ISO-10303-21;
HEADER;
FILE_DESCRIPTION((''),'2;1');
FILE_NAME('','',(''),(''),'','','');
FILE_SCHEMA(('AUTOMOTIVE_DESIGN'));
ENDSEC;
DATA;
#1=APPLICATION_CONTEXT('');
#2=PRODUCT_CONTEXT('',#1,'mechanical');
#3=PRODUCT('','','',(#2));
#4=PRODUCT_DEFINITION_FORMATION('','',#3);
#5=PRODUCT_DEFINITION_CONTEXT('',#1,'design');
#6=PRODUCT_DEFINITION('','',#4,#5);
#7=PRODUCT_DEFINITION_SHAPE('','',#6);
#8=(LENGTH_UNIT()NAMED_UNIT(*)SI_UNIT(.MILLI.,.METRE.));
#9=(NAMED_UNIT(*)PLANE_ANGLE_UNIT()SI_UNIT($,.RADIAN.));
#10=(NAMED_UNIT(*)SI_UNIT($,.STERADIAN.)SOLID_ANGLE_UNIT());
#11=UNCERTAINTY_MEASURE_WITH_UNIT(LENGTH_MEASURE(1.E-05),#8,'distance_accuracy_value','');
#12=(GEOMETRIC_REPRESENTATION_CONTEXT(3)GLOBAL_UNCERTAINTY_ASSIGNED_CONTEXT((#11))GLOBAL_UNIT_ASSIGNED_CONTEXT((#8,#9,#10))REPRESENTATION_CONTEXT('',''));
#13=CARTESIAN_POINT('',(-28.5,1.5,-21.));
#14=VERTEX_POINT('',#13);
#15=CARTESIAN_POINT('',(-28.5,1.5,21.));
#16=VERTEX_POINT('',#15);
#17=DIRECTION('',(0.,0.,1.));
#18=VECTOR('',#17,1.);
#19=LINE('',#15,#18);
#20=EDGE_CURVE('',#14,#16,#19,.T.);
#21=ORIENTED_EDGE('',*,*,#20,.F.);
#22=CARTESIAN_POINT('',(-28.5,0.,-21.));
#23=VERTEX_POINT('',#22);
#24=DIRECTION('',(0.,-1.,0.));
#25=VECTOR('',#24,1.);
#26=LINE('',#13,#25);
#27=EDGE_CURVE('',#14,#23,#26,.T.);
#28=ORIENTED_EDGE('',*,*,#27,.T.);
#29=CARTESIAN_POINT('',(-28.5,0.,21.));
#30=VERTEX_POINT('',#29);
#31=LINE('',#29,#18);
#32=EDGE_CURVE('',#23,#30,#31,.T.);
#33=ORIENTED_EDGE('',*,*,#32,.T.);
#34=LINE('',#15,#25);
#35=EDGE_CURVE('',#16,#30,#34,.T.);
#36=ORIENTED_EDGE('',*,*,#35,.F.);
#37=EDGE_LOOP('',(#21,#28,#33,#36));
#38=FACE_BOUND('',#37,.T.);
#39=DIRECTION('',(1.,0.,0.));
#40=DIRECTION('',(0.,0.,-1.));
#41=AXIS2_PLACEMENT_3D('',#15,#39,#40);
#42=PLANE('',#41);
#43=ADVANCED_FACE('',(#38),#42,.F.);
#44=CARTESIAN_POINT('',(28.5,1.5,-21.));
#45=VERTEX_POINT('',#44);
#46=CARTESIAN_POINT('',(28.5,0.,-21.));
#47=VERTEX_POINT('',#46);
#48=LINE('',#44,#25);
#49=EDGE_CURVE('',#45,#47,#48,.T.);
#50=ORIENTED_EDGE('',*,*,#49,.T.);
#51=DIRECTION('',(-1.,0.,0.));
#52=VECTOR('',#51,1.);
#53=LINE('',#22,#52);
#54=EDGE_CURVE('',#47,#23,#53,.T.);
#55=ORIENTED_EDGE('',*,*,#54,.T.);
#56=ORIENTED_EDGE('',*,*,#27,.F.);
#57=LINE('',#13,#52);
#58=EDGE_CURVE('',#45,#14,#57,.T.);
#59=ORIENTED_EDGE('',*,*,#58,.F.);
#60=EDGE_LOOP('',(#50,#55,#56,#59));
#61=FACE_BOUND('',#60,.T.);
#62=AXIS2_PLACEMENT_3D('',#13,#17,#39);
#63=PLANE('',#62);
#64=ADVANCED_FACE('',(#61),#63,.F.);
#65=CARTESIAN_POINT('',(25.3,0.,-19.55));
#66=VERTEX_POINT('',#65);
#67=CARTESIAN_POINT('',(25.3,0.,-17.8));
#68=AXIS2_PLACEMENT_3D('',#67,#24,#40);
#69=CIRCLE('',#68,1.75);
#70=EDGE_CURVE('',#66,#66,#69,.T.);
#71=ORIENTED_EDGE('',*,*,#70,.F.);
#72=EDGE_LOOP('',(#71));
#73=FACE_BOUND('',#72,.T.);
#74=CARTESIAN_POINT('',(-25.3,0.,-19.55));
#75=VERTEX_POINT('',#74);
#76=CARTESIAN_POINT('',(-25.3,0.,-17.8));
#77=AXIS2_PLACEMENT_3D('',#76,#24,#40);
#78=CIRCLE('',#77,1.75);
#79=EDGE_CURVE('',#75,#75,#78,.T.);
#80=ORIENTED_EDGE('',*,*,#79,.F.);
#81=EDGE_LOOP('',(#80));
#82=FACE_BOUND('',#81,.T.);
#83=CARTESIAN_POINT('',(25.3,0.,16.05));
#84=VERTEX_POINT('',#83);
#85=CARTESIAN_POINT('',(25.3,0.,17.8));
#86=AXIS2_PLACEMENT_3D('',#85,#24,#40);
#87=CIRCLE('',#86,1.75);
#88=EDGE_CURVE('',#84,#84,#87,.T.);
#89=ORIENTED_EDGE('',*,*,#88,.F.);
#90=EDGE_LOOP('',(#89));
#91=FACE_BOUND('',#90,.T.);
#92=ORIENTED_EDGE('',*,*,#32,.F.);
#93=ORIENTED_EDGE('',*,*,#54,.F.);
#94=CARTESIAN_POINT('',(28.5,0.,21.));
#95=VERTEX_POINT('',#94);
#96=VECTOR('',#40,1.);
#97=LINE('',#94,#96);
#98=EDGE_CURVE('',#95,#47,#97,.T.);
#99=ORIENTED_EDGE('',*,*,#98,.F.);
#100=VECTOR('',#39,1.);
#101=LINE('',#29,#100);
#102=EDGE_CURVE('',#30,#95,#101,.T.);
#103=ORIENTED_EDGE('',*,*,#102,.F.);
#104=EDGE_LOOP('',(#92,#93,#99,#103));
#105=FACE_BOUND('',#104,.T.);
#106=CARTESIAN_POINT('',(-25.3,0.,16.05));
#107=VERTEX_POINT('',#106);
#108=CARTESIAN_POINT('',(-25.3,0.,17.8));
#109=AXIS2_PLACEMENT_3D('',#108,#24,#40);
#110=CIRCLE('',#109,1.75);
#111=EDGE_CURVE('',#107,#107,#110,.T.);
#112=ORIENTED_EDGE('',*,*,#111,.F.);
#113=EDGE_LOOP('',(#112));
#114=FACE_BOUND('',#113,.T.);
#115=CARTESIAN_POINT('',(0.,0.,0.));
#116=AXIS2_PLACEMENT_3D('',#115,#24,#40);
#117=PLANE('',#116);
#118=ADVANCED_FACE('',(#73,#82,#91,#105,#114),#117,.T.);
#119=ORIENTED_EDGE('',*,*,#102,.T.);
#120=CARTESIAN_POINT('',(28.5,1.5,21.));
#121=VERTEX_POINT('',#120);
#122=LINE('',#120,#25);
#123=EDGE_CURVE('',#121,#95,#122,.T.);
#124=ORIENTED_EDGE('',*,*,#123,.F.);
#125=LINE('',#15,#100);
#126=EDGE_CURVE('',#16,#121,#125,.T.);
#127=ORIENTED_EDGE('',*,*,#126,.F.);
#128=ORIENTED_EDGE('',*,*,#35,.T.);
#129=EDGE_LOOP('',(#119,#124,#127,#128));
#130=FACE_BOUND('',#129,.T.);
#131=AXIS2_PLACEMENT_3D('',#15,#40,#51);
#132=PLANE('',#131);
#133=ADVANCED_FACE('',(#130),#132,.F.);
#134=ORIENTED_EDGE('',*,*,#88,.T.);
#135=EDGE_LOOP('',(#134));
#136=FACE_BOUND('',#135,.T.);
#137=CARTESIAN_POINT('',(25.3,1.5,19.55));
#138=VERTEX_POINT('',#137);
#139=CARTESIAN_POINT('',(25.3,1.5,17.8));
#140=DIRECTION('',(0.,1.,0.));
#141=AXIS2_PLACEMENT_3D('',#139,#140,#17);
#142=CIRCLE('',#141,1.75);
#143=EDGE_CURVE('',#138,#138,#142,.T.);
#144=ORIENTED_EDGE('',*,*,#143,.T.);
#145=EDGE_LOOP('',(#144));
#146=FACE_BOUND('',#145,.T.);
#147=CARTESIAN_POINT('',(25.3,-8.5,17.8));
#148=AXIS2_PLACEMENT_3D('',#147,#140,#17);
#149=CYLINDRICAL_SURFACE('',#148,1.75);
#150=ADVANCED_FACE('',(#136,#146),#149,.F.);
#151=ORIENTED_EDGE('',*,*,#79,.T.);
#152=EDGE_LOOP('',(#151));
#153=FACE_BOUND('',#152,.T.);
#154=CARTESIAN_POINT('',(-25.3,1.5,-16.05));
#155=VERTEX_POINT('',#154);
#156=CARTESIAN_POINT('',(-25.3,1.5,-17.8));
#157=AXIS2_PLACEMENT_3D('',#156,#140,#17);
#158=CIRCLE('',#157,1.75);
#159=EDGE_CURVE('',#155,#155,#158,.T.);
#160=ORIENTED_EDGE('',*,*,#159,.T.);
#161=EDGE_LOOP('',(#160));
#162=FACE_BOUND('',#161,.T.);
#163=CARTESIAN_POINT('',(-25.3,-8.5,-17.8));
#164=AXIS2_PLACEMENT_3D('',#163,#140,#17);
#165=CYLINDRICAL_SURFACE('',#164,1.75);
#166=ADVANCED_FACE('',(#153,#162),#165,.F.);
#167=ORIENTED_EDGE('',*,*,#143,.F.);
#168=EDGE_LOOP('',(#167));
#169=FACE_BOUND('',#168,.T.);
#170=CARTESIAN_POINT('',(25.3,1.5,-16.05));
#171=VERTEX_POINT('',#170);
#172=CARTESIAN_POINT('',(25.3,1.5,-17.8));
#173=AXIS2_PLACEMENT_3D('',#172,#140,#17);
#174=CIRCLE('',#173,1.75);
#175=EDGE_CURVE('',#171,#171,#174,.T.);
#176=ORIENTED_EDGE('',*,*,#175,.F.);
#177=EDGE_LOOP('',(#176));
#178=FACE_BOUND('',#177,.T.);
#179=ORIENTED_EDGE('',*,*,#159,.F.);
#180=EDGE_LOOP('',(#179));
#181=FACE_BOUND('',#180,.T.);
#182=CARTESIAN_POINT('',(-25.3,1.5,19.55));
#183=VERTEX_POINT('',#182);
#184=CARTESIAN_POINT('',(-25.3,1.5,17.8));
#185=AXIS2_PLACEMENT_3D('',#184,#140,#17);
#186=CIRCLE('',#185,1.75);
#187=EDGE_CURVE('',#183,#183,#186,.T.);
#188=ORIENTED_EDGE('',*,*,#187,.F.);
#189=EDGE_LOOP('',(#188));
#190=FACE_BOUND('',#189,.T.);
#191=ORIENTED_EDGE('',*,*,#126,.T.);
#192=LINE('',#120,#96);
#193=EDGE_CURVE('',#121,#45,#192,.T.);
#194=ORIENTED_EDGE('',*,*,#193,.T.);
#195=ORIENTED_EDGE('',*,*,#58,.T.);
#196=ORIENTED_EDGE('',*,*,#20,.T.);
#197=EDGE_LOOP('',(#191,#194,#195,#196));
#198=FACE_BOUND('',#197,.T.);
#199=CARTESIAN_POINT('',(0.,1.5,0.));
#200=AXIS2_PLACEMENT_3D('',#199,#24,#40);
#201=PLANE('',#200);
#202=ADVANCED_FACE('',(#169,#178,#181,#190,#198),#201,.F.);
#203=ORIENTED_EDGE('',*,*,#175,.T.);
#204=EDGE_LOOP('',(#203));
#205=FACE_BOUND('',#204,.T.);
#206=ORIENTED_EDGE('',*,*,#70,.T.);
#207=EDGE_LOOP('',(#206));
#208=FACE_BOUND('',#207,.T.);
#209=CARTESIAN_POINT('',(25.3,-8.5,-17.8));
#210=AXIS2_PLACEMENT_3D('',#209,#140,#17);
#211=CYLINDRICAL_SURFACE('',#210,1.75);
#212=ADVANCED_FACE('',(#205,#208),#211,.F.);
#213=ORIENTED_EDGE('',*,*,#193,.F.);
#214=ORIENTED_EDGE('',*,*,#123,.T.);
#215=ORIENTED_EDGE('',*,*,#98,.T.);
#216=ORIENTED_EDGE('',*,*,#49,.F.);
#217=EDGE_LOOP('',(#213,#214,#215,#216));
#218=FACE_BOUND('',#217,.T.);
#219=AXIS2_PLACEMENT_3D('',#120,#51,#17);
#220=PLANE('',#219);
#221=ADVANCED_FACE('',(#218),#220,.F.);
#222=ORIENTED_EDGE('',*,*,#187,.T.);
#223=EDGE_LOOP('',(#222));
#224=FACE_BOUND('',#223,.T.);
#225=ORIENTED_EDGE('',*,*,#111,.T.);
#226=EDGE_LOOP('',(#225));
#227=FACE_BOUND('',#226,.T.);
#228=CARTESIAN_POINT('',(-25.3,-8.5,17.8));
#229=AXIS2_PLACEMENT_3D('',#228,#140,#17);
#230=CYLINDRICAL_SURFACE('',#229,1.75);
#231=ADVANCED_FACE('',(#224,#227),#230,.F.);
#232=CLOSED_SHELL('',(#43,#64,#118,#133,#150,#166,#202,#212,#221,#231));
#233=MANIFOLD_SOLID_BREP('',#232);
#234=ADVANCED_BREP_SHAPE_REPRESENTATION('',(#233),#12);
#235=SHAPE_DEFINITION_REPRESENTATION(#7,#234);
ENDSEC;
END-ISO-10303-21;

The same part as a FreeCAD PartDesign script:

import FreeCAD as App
import Part
import Sketcher
from FreeCAD import Vector

doc = App.newDocument("Part")
params = doc.addObject("Spreadsheet::Sheet", "Params")
for row, (alias, value) in enumerate([
    ("sketch1_width", "57 mm"),
    ("sketch1_height", "42 mm"),
    ("pad1_length", "1.5 mm"),
    ("sketch2_diameter", "3.5 mm"),
    ("pocket1_length", "10 mm"),
], start=1):
    params.set(f"A{row}", alias)
    params.set(f"B{row}", "=" + value)
    params.setAlias(f"B{row}", alias)

body = doc.addObject("PartDesign::Body", "Body")

# Sketch on XZ plane
sketch1 = body.newObject("Sketcher::SketchObject", "Sketch")
sketch1.AttachmentSupport = (doc.getObject("XZ_Plane"), [""])
sketch1.MapMode = "FlatFace"
sketch1.addGeometry([
    Part.LineSegment(Vector(-28.5, -21, 0), Vector(-28.5, 21, 0)),
    Part.LineSegment(Vector(-28.5, 21, 0), Vector(28.5, 21, 0)),
    Part.LineSegment(Vector(28.5, 21, 0), Vector(28.5, -21, 0)),
    Part.LineSegment(Vector(28.5, -21, 0), Vector(-28.5, -21, 0)),
], False)
sketch1.addConstraint([
    Sketcher.Constraint("Coincident", 0, 2, 1, 1),
    Sketcher.Constraint("Coincident", 1, 2, 2, 1),
    Sketcher.Constraint("Coincident", 2, 2, 3, 1),
    Sketcher.Constraint("Coincident", 3, 2, 0, 1),
    Sketcher.Constraint("Vertical", 0),
    Sketcher.Constraint("Horizontal", 1),
    Sketcher.Constraint("Vertical", 2),
    Sketcher.Constraint("Horizontal", 3),
    Sketcher.Constraint("Symmetric", 0, 2, 2, 2, -1, 1),
    Sketcher.Constraint("DistanceX", 1, 1, 1, 2, 57.0),
    Sketcher.Constraint("DistanceY", 0, 1, 0, 2, 42.0),
])
sketch1.setExpression("Constraints[9]", "Params.sketch1_width")
sketch1.setExpression("Constraints[10]", "Params.sketch1_height")
pad1 = body.newObject("PartDesign::Pad", "Pad")
pad1.Profile = sketch1
pad1.setExpression("Length", "Params.pad1_length")
pad1.Reversed = True

# Sketch on XZ plane
sketch2 = body.newObject("Sketcher::SketchObject", "Sketch001")
sketch2.AttachmentSupport = (doc.getObject("XZ_Plane"), [""])
sketch2.MapMode = "FlatFace"
sketch2.AttachmentOffset = App.Placement(Vector(0, 0, -1.5), App.Rotation())
sketch2.addGeometry([
    Part.Circle(Vector(-25.3, -17.8, 0), Vector(0, 0, 1), 1.75),
    Part.Circle(Vector(-25.3, 17.8, 0), Vector(0, 0, 1), 1.75),
    Part.Circle(Vector(25.3, 17.8, 0), Vector(0, 0, 1), 1.75),
    Part.Circle(Vector(25.3, -17.8, 0), Vector(0, 0, 1), 1.75),
], False)
sketch2.addConstraint([
    Sketcher.Constraint("Equal", 0, 1),
    Sketcher.Constraint("Equal", 1, 2),
    Sketcher.Constraint("Equal", 2, 3),
    Sketcher.Constraint("Symmetric", 0, 3, 2, 3, -1, 1),
    Sketcher.Constraint("Symmetric", 1, 3, 3, 3, -1, 1),
    Sketcher.Constraint("Symmetric", 1, 3, 2, 3, -2),
    Sketcher.Constraint("Diameter", 0, 3.5),
    Sketcher.Constraint("DistanceX", 0, 3, -1, 1, 25.3),
    Sketcher.Constraint("DistanceY", 0, 3, -1, 1, 17.8),
])
sketch2.setExpression("Constraints[6]", "Params.sketch2_diameter")
pocket1 = body.newObject("PartDesign::Pocket", "Pocket")
pocket1.Profile = sketch2
pocket1.setExpression("Length", "Params.pocket1_length")
pocket1.Reversed = True

doc.recompute()
